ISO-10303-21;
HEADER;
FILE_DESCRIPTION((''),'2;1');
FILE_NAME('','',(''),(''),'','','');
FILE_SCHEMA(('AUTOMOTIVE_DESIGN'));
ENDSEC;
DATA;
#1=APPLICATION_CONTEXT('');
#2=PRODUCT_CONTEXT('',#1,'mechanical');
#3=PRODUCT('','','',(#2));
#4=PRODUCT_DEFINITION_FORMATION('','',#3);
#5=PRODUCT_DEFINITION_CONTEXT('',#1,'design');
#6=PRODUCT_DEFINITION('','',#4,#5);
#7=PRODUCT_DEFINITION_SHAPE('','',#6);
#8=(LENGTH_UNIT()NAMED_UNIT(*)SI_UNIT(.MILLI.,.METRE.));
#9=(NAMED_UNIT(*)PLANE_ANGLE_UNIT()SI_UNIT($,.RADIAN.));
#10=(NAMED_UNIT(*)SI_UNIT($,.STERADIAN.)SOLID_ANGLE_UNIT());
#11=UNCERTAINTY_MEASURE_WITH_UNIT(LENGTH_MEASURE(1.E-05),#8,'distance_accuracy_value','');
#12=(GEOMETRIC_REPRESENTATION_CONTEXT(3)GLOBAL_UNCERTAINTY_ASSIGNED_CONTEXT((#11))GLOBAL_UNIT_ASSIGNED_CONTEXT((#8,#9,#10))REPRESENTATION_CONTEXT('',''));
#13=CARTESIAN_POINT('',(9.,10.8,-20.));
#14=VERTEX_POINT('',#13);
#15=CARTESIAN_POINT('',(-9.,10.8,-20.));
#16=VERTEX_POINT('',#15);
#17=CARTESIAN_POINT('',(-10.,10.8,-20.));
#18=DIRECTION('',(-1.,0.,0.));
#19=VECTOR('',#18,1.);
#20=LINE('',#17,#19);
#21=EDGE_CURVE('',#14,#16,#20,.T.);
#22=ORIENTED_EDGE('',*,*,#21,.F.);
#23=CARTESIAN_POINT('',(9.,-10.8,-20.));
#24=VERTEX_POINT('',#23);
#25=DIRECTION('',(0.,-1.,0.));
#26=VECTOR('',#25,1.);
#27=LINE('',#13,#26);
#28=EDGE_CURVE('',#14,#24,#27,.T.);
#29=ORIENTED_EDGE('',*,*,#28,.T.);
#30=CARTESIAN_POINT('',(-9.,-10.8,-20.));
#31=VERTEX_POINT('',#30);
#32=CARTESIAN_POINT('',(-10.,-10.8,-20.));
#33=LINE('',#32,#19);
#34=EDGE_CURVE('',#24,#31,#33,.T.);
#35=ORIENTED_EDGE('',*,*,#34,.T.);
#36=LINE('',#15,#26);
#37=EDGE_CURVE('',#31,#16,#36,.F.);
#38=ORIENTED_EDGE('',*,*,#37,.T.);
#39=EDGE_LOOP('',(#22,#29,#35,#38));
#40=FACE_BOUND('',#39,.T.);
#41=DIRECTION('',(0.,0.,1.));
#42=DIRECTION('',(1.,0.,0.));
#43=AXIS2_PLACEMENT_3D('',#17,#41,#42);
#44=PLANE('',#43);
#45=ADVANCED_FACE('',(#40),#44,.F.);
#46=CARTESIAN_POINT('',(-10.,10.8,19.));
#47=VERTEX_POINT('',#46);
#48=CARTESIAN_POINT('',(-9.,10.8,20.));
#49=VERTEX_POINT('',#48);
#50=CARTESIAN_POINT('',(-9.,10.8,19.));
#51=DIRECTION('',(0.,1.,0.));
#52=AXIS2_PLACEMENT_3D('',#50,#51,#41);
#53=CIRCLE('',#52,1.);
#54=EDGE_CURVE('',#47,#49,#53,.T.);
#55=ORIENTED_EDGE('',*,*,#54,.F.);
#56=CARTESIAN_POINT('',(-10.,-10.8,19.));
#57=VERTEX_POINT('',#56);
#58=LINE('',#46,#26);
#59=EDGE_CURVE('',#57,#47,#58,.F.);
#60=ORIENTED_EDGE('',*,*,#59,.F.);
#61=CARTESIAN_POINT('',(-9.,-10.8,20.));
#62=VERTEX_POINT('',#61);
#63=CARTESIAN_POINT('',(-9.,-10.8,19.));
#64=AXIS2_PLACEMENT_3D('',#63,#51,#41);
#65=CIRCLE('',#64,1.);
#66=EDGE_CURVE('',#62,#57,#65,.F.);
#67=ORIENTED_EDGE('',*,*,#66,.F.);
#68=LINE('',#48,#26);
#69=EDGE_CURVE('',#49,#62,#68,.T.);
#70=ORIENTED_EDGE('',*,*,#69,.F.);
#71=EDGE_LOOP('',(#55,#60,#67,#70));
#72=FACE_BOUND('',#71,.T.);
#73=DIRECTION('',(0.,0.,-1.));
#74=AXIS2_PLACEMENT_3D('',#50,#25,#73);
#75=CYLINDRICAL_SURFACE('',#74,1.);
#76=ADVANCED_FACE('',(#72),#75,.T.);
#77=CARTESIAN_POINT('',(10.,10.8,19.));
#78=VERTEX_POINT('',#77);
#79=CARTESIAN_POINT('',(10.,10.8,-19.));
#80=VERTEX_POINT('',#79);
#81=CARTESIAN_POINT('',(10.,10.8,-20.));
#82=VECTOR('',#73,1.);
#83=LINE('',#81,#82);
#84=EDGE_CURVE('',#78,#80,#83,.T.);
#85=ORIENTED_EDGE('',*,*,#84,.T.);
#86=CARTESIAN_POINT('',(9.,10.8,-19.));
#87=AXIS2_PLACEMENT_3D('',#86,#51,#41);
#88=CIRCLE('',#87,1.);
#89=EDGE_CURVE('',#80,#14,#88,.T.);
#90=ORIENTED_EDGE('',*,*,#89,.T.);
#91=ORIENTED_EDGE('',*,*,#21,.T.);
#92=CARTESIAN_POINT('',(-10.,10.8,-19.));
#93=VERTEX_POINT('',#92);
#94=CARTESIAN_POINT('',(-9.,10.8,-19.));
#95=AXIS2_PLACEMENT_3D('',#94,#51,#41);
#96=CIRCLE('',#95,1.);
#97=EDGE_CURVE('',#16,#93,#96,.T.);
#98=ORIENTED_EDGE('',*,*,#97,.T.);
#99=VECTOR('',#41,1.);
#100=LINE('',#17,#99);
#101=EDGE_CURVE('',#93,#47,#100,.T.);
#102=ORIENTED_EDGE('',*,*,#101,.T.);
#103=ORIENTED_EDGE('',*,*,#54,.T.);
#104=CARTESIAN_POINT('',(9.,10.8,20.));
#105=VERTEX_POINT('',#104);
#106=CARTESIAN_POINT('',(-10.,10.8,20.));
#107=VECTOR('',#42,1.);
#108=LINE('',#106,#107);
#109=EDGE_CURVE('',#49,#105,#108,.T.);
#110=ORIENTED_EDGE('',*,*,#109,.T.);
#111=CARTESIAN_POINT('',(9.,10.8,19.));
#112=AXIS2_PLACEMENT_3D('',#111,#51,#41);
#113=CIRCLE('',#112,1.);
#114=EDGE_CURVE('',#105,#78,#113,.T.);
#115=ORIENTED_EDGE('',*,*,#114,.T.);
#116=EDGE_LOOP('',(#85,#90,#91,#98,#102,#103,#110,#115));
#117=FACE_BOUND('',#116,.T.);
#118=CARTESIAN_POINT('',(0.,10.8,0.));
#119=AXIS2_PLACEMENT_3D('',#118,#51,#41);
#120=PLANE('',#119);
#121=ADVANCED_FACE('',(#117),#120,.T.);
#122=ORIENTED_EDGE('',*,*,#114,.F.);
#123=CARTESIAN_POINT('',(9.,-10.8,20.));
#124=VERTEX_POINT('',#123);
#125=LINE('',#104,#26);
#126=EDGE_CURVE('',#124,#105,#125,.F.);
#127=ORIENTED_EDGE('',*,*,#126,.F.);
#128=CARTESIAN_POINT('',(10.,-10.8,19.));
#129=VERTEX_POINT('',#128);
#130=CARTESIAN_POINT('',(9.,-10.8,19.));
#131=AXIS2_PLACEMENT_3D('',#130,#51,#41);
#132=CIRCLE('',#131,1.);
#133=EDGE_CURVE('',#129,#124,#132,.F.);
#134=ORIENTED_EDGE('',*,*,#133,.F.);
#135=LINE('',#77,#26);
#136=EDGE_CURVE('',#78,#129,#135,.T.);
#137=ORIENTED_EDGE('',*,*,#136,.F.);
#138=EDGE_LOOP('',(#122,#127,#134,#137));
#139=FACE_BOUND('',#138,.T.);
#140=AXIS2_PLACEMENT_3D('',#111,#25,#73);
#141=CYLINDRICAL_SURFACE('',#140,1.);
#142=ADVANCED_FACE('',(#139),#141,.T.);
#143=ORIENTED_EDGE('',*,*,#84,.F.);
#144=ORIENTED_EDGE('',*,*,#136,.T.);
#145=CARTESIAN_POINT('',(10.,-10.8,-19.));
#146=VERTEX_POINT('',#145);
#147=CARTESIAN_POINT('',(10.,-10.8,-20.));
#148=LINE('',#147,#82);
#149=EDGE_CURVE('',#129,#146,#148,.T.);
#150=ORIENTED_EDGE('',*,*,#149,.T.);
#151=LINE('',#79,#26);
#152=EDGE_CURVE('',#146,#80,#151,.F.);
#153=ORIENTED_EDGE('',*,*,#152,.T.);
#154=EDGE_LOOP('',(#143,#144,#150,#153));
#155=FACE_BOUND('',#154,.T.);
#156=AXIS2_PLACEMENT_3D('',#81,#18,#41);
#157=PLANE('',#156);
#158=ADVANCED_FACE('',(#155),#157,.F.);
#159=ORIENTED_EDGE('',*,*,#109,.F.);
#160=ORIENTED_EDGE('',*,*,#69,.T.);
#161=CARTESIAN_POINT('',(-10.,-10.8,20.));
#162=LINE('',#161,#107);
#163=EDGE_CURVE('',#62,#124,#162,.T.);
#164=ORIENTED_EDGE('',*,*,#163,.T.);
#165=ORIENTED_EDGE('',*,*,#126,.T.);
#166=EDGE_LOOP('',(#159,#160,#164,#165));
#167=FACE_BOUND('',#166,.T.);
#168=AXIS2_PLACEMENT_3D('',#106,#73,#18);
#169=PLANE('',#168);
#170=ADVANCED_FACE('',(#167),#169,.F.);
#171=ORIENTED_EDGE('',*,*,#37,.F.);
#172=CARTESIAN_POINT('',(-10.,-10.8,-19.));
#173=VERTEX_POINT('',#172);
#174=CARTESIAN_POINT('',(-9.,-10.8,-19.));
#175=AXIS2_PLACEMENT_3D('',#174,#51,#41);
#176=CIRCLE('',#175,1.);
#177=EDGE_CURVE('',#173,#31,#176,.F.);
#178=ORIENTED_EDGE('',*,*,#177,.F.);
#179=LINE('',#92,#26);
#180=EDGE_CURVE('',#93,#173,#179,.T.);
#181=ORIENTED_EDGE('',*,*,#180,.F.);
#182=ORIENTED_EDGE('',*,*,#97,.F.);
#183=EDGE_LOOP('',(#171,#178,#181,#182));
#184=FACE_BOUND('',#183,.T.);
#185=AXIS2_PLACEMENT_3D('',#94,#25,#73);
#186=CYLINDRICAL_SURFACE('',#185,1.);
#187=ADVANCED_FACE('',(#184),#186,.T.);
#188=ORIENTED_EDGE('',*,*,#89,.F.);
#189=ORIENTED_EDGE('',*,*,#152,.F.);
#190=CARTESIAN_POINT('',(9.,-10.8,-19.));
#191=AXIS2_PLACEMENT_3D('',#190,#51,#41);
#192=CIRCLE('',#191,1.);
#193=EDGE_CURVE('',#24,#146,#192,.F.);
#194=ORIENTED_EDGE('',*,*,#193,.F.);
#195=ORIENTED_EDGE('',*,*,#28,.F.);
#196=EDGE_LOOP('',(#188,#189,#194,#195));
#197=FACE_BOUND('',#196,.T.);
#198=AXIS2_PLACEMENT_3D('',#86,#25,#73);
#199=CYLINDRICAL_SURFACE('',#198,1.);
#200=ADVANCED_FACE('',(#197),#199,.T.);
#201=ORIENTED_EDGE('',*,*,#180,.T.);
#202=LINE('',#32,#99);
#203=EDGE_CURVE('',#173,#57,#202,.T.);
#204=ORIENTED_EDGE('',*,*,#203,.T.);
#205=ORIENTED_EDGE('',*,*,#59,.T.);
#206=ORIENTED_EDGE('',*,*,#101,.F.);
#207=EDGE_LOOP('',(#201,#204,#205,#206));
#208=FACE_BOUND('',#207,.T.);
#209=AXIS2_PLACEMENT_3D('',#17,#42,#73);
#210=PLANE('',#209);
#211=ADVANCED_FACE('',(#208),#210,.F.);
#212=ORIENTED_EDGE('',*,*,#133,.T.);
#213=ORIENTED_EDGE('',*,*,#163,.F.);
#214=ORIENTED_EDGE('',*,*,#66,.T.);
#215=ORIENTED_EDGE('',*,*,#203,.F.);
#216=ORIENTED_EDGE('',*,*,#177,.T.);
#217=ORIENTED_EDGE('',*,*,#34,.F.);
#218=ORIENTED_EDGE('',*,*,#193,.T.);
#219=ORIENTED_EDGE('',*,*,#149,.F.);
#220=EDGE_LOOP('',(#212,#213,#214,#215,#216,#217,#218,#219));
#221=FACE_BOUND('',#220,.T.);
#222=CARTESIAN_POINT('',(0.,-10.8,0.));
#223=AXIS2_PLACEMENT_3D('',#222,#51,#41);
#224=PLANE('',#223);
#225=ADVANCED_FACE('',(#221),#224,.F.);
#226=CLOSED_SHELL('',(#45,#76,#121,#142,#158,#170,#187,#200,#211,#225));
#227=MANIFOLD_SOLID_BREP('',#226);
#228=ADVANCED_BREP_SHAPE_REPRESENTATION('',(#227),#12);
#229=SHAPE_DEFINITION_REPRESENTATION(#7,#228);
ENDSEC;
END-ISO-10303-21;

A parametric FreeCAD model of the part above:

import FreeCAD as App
import Part
import Sketcher
from FreeCAD import Vector
Q = App.Units.Quantity


def edges_at(feature, points):
    """Names of the edges that pass closest to the given points."""
    edges = feature.Shape.Edges
    near = lambda p: min(range(len(edges)), key=lambda i: edges[i].distToShape(Part.Vertex(*p))[0])
    return sorted({f"Edge{near(p) + 1}" for p in points})


def add_polygon(sketch, points):
    """Adds a closed chain of lines whose ends are joined by coincident constraints."""
    first, n = sketch.GeometryCount, len(points)
    for a, b in zip(points, points[1:] + points[:1]):
        sketch.addGeometry(Part.LineSegment(App.Vector(*a, 0), App.Vector(*b, 0)), False)
    for i in range(n):
        sketch.addConstraint(Sketcher.Constraint("Coincident", first + i, 2, first + (i + 1) % n, 1))

doc = App.newDocument("Part")
body = doc.addObject("PartDesign::Body", "Body")

sketch1 = doc.addObject("Sketcher::SketchObject", "Sketch")
body.addObject(sketch1)
sketch1.AttachmentSupport = (doc.XZ_Plane, [""])
sketch1.MapMode = "FlatFace"
add_polygon(sketch1, [(-10, -20), (-10, 20), (10, 20), (10, -20)])
sketch1.addConstraint([
    Sketcher.Constraint("Vertical", 0),
    Sketcher.Constraint("Horizontal", 1),
    Sketcher.Constraint("Vertical", 2),
    Sketcher.Constraint("Horizontal", 3),
    Sketcher.Constraint("Symmetric", 0, 2, 2, 2, -1, 1),
    Sketcher.Constraint("DistanceX", 1, 1, 1, 2, Q("20 mm")),
    Sketcher.Constraint("DistanceY", 0, 1, 0, 2, Q("40 mm")),
])
pad1 = doc.addObject("PartDesign::Pad", "Pad")
body.addObject(pad1)
pad1.Profile = sketch1
pad1.Length = 21.6
pad1.Midplane = True
doc.recompute()

fillet = doc.addObject("PartDesign::Fillet", "Fillet")
body.addObject(fillet)
fillet.Base = (pad1, edges_at(pad1, [
    (10, 0, 20),
    (-10, 0, 20),
    (-10, 0, -20),
    (10, 0, -20),
]))
fillet.Radius = 1

doc.recompute()
